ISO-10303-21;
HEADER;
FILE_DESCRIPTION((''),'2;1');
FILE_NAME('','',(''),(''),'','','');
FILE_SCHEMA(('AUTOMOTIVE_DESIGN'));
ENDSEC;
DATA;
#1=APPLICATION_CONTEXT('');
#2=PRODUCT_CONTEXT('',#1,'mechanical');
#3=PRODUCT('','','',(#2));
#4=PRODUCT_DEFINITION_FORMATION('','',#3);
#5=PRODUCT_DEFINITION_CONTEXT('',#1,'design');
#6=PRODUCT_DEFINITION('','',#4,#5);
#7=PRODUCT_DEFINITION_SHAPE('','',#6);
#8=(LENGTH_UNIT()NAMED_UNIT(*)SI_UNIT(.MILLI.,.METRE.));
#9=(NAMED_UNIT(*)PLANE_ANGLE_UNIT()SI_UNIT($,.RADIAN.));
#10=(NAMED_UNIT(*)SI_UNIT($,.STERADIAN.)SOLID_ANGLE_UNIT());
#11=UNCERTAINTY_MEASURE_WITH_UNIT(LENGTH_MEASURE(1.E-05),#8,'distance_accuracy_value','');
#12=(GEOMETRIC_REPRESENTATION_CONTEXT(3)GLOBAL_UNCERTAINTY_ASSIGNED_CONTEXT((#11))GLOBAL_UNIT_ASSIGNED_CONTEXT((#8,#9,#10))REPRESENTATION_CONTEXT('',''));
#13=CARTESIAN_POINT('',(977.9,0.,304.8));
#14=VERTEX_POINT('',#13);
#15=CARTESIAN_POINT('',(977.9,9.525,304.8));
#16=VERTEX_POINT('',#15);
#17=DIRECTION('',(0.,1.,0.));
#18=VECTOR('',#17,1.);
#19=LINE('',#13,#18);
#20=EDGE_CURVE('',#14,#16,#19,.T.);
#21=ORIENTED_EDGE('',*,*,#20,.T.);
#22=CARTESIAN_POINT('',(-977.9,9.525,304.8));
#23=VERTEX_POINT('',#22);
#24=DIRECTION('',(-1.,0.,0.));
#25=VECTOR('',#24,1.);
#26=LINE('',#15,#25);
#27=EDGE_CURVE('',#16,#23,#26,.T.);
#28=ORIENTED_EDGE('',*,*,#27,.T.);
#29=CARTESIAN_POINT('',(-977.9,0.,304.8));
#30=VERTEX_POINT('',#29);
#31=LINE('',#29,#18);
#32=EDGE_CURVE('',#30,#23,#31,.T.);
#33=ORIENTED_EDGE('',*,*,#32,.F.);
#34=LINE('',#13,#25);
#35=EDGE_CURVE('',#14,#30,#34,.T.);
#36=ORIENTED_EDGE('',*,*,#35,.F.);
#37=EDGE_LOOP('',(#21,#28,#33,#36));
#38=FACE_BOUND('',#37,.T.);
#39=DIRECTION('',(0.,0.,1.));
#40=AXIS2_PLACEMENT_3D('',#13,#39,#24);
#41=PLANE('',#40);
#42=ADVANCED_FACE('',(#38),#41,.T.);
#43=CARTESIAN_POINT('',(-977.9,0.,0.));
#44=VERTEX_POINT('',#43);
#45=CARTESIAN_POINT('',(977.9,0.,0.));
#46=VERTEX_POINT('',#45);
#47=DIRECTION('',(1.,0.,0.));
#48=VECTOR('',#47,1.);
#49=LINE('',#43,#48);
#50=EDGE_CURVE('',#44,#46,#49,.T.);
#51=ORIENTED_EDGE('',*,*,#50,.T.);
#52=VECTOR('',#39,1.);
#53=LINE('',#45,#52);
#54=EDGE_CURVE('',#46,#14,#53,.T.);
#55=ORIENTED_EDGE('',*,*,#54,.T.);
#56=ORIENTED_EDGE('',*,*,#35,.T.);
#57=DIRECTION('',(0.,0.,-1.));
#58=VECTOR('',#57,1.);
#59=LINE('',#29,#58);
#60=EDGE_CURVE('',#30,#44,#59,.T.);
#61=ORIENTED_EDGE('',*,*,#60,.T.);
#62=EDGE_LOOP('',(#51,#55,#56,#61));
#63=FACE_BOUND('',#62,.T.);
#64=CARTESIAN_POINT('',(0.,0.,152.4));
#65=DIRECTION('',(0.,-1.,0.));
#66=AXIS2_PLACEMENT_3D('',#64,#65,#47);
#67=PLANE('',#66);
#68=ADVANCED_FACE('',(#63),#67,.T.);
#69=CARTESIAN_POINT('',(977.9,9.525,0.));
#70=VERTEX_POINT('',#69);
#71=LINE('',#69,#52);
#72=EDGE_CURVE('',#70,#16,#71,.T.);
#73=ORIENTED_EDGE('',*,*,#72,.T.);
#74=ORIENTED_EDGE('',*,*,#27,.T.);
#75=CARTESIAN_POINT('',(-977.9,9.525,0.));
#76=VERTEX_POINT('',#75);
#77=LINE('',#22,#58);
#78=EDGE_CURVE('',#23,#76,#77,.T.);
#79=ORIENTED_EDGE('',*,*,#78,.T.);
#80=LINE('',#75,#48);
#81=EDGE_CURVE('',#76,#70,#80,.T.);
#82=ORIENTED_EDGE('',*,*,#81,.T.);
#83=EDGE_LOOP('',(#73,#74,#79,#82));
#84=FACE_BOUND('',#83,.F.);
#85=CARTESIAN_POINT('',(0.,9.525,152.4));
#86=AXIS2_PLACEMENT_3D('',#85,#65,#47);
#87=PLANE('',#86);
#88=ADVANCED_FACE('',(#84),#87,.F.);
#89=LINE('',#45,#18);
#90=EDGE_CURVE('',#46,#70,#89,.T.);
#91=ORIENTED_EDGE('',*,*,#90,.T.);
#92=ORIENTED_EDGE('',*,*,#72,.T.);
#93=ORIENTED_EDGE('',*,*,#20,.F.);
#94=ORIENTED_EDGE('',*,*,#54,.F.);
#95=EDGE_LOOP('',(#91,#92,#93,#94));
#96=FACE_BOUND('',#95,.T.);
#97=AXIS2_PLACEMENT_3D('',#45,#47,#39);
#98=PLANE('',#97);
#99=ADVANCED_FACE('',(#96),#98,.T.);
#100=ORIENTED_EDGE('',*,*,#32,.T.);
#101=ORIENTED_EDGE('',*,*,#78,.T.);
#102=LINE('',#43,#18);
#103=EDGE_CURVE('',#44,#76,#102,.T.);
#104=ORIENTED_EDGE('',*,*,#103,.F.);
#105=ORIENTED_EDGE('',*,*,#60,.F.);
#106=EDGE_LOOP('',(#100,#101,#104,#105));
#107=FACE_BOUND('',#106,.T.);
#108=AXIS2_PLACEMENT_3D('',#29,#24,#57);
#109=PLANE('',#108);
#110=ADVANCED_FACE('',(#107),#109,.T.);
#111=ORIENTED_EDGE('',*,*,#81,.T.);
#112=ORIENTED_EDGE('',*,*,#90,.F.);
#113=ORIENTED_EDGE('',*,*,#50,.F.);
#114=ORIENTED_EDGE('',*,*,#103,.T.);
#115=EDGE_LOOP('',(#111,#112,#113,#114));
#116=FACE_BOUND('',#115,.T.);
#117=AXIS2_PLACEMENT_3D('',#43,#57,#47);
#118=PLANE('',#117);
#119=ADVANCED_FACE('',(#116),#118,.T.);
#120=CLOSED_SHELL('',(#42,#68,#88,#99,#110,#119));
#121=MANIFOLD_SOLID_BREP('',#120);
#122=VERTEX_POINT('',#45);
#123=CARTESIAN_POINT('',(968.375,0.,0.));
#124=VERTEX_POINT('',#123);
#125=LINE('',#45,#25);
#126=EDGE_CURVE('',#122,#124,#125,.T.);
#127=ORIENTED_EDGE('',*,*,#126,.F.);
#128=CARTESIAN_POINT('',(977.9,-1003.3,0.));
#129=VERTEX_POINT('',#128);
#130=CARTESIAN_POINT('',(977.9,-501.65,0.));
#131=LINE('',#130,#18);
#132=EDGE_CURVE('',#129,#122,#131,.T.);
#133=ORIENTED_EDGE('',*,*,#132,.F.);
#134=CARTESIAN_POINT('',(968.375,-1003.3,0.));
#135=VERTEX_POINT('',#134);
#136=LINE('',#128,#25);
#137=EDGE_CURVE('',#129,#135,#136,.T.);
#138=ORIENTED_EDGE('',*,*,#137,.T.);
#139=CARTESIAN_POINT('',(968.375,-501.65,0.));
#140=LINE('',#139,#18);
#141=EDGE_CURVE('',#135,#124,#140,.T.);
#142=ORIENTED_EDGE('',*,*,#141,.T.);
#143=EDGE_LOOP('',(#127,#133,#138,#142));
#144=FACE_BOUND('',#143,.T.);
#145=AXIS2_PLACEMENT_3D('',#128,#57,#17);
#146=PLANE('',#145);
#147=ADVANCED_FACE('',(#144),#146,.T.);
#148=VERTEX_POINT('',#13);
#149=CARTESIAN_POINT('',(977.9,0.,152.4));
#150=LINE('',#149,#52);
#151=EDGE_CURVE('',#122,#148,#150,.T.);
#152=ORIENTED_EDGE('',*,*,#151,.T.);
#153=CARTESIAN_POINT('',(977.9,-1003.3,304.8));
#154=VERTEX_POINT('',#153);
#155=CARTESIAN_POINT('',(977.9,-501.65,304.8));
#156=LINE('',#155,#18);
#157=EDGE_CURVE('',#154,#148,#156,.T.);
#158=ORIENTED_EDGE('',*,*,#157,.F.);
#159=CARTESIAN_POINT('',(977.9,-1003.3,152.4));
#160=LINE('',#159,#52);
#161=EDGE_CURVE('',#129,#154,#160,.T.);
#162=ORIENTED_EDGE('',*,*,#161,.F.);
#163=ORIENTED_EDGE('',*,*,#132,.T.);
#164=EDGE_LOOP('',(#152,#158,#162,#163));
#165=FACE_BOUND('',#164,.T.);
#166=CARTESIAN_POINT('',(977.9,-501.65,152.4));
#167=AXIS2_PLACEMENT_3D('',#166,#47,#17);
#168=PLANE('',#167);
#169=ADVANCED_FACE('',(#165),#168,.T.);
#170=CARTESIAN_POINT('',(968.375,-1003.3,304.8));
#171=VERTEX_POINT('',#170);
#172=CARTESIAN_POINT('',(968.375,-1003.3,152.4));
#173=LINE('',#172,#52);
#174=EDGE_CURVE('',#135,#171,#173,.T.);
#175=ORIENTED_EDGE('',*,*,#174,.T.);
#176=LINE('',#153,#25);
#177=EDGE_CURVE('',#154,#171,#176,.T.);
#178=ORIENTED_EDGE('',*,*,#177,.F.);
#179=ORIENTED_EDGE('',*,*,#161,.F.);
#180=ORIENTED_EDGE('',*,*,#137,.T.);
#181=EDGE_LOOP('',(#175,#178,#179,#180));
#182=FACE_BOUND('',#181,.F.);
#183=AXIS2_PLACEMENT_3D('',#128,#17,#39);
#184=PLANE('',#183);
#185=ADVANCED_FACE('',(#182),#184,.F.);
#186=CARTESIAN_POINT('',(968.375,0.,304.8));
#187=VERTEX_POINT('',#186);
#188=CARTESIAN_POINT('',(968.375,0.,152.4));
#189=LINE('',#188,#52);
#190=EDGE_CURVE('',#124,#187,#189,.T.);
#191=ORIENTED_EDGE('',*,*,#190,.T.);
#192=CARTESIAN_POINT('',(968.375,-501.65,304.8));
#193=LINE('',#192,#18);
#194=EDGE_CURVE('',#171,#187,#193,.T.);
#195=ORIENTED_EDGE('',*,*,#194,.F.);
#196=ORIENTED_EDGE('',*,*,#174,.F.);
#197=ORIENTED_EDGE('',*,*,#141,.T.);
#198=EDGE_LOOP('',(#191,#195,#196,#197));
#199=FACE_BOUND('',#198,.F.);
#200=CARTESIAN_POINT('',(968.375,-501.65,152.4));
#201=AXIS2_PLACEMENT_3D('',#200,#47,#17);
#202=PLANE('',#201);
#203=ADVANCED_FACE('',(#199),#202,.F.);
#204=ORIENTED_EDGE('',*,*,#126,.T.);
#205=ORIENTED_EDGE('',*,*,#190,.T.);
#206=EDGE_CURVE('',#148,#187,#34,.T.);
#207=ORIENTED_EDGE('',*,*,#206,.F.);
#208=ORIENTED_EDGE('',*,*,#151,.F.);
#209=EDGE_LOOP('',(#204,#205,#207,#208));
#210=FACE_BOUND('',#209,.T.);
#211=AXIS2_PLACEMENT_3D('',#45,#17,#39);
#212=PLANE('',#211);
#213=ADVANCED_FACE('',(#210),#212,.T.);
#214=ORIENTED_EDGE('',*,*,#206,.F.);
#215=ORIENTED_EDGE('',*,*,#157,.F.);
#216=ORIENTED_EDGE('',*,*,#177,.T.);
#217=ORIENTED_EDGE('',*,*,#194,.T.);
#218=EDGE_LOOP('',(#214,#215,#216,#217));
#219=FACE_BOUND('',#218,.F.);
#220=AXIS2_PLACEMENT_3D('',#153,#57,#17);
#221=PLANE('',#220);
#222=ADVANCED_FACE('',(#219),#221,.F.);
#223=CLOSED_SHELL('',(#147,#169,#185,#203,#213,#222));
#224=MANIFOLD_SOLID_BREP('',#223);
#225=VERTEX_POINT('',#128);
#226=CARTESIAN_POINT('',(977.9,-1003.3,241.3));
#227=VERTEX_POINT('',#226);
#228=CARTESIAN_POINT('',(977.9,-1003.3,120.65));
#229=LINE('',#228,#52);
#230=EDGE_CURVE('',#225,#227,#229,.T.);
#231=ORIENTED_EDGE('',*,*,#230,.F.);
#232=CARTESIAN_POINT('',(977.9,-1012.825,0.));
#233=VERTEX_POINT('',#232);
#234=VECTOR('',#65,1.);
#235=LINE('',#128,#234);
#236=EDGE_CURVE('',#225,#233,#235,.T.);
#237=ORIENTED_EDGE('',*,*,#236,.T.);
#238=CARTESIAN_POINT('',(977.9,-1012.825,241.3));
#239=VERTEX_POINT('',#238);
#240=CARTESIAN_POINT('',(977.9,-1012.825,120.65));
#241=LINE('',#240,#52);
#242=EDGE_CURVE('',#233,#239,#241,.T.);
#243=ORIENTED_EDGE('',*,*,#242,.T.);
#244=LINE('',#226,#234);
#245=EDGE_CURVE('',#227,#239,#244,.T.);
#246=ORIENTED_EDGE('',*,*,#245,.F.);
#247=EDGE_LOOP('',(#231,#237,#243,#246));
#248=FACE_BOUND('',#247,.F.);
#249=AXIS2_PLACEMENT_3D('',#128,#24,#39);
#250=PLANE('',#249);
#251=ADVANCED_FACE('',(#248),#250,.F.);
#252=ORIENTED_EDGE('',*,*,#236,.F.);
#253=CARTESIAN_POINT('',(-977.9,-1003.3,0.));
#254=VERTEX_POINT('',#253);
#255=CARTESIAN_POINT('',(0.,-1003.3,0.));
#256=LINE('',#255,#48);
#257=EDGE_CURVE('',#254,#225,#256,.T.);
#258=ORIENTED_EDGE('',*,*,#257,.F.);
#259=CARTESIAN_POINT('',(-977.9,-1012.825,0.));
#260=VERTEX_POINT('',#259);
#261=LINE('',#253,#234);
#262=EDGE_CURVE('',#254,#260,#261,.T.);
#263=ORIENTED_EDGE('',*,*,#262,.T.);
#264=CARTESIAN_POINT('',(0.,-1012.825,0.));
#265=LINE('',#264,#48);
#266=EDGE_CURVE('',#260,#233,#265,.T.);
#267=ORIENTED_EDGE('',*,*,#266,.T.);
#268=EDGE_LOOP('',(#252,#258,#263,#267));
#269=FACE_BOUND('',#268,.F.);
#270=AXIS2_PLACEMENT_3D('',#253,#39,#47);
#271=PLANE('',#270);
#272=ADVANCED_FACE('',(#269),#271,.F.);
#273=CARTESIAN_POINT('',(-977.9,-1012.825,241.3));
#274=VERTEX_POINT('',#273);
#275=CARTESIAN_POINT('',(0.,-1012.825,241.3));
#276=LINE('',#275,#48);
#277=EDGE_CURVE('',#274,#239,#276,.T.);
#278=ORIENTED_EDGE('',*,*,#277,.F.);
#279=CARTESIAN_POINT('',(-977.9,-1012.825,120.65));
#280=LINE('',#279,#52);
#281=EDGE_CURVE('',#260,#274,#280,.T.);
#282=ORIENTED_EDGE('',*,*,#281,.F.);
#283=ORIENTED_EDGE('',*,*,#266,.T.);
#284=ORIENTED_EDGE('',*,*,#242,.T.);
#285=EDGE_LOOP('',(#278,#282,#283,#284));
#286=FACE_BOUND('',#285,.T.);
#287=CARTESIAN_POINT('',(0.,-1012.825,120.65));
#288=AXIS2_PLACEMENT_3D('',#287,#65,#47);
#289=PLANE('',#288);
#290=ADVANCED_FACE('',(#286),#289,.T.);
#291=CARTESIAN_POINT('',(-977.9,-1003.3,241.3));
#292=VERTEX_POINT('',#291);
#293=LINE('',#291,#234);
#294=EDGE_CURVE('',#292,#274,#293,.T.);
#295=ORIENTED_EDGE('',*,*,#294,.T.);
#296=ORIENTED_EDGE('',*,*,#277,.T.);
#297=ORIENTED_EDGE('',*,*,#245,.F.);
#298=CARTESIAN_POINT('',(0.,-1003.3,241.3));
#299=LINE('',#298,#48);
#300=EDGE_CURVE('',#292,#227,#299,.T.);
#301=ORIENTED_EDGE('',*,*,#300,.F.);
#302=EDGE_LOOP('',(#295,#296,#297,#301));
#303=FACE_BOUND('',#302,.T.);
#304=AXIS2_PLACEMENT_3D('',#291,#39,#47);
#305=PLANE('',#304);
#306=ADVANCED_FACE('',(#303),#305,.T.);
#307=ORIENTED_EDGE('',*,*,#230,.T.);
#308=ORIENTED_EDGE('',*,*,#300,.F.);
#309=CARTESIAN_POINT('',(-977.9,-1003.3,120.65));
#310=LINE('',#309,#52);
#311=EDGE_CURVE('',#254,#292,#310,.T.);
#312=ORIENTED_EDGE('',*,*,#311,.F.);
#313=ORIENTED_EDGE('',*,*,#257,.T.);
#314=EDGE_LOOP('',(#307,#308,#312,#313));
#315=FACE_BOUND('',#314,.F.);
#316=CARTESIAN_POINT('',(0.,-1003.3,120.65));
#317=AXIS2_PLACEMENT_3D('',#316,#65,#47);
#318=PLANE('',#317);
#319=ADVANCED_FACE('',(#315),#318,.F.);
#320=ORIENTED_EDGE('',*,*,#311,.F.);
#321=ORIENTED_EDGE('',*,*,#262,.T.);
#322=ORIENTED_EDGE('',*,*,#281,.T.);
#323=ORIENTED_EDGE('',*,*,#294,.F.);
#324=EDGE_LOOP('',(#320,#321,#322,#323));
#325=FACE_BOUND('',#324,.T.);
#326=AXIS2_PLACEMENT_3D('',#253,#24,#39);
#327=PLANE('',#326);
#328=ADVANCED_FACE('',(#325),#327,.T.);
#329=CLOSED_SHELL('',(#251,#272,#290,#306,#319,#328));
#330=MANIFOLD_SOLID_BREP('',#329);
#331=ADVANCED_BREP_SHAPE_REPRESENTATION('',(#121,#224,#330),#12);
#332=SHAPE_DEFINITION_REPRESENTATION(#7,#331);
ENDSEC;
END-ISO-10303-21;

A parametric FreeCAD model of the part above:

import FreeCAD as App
import Part
import Sketcher
from FreeCAD import Vector
Q = App.Units.Quantity

doc = App.newDocument("Part")
body = doc.addObject("PartDesign::Body", "Body")

sketch1 = body.newObject("Sketcher::SketchObject", "Sketch")
sketch1.AttachmentSupport = (doc.getObject("XZ_Plane"), [""])
sketch1.MapMode = "FlatFace"
sketch1.addGeometry(Part.LineSegment(Vector(-978, 305, 0), Vector(-978, 0, 0)), False)
sketch1.addGeometry(Part.LineSegment(Vector(-978, 0, 0), Vector(978, 0, 0)), False)
sketch1.addGeometry(Part.LineSegment(Vector(978, 0, 0), Vector(978, 305, 0)), False)
sketch1.addGeometry(Part.LineSegment(Vector(978, 305, 0), Vector(-978, 305, 0)), False)
sketch1.addConstraint(Sketcher.Constraint("Coincident", 0, 2, 1, 1))
sketch1.addConstraint(Sketcher.Constraint("Coincident", 1, 2, 2, 1))
sketch1.addConstraint(Sketcher.Constraint("Coincident", 2, 2, 3, 1))
sketch1.addConstraint(Sketcher.Constraint("Coincident", 3, 2, 0, 1))
sketch1.addConstraint(Sketcher.Constraint("Vertical", 0))
sketch1.addConstraint(Sketcher.Constraint("Horizontal", 1))
sketch1.addConstraint(Sketcher.Constraint("Vertical", 2))
sketch1.addConstraint(Sketcher.Constraint("Horizontal", 3))
sketch1.addConstraint(Sketcher.Constraint("Symmetric", 0, 2, 1, 2, -1, 1))
sketch1.addConstraint(Sketcher.Constraint("DistanceX", 1, 1, 1, 2, Q("77 in")))
sketch1.addConstraint(Sketcher.Constraint("DistanceY", 0, 2, 0, 1, Q("12 in")))
pad1 = body.newObject("PartDesign::Pad", "Pad")
pad1.Profile = sketch1
pad1.Length = Q("0.375 in")
pad1.Reversed = True
body2 = doc.addObject("PartDesign::Body", "Body001")

sketch2 = body2.newObject("Sketcher::SketchObject", "Sketch001")
sketch2.AttachmentSupport = (doc.getObject("XZ_Plane001"), [""])
sketch2.MapMode = "FlatFace"
sketch2.AttachmentOffset = App.Placement(Vector(0, 0, 39.5 * 25.4), App.Rotation())
sketch2.addGeometry(Part.LineSegment(Vector(-978, 241, 0), Vector(-978, 0, 0)), False)
sketch2.addGeometry(Part.LineSegment(Vector(-978, 0, 0), Vector(978, 0, 0)), False)
sketch2.addGeometry(Part.LineSegment(Vector(978, 0, 0), Vector(978, 241, 0)), False)
sketch2.addGeometry(Part.LineSegment(Vector(978, 241, 0), Vector(-978, 241, 0)), False)
sketch2.addConstraint(Sketcher.Constraint("Coincident", 0, 2, 1, 1))
sketch2.addConstraint(Sketcher.Constraint("Coincident", 1, 2, 2, 1))
sketch2.addConstraint(Sketcher.Constraint("Coincident", 2, 2, 3, 1))
sketch2.addConstraint(Sketcher.Constraint("Coincident", 3, 2, 0, 1))
sketch2.addConstraint(Sketcher.Constraint("Vertical", 0))
sketch2.addConstraint(Sketcher.Constraint("Horizontal", 1))
sketch2.addConstraint(Sketcher.Constraint("Vertical", 2))
sketch2.addConstraint(Sketcher.Constraint("Horizontal", 3))
sketch2.addConstraint(Sketcher.Constraint("Symmetric", 0, 2, 1, 2, -1, 1))
sketch2.addConstraint(Sketcher.Constraint("DistanceX", 1, 1, 1, 2, Q("77 in")))
sketch2.addConstraint(Sketcher.Constraint("DistanceY", 0, 2, 0, 1, Q("9.5 in")))
pad2 = body2.newObject("PartDesign::Pad", "Pad001")
pad2.Profile = sketch2
pad2.Length = Q("0.375 in")
body3 = doc.addObject("PartDesign::Body", "Body002")

sketch3 = body3.newObject("Sketcher::SketchObject", "Sketch002")
sketch3.AttachmentSupport = (doc.getObject("YZ_Plane002"), [""])
sketch3.MapMode = "FlatFace"
sketch3.AttachmentOffset = App.Placement(Vector(0, 0, 38.5 * 25.4), App.Rotation())
sketch3.addGeometry(Part.LineSegment(Vector(-1003, 305, 0), Vector(-1003, 0, 0)), False)
sketch3.addGeometry(Part.LineSegment(Vector(-1003, 0, 0), Vector(0, 0, 0)), False)
sketch3.addGeometry(Part.LineSegment(Vector(0, 0, 0), Vector(0, 305, 0)), False)
sketch3.addGeometry(Part.LineSegment(Vector(0, 305, 0), Vector(-1003, 305, 0)), False)
sketch3.addConstraint(Sketcher.Constraint("Coincident", 0, 2, 1, 1))
sketch3.addConstraint(Sketcher.Constraint("Coincident", 1, 2, 2, 1))
sketch3.addConstraint(Sketcher.Constraint("Coincident", 2, 2, 3, 1))
sketch3.addConstraint(Sketcher.Constraint("Coincident", 3, 2, 0, 1))
sketch3.addConstraint(Sketcher.Constraint("Vertical", 0))
sketch3.addConstraint(Sketcher.Constraint("Horizontal", 1))
sketch3.addConstraint(Sketcher.Constraint("Vertical", 2))
sketch3.addConstraint(Sketcher.Constraint("Horizontal", 3))
sketch3.addConstraint(Sketcher.Constraint("Coincident", 1, 2, -1, 1))
sketch3.addConstraint(Sketcher.Constraint("DistanceY", 0, 2, 0, 1, Q("12 in")))
sketch3.addConstraint(Sketcher.Constraint("DistanceX", 1, 1, 1, 2, Q("39.5 in")))
pad3 = body3.newObject("PartDesign::Pad", "Pad002")
pad3.Profile = sketch3
pad3.Length = Q("0.375 in")
pad3.Reversed = True

doc.recompute()
